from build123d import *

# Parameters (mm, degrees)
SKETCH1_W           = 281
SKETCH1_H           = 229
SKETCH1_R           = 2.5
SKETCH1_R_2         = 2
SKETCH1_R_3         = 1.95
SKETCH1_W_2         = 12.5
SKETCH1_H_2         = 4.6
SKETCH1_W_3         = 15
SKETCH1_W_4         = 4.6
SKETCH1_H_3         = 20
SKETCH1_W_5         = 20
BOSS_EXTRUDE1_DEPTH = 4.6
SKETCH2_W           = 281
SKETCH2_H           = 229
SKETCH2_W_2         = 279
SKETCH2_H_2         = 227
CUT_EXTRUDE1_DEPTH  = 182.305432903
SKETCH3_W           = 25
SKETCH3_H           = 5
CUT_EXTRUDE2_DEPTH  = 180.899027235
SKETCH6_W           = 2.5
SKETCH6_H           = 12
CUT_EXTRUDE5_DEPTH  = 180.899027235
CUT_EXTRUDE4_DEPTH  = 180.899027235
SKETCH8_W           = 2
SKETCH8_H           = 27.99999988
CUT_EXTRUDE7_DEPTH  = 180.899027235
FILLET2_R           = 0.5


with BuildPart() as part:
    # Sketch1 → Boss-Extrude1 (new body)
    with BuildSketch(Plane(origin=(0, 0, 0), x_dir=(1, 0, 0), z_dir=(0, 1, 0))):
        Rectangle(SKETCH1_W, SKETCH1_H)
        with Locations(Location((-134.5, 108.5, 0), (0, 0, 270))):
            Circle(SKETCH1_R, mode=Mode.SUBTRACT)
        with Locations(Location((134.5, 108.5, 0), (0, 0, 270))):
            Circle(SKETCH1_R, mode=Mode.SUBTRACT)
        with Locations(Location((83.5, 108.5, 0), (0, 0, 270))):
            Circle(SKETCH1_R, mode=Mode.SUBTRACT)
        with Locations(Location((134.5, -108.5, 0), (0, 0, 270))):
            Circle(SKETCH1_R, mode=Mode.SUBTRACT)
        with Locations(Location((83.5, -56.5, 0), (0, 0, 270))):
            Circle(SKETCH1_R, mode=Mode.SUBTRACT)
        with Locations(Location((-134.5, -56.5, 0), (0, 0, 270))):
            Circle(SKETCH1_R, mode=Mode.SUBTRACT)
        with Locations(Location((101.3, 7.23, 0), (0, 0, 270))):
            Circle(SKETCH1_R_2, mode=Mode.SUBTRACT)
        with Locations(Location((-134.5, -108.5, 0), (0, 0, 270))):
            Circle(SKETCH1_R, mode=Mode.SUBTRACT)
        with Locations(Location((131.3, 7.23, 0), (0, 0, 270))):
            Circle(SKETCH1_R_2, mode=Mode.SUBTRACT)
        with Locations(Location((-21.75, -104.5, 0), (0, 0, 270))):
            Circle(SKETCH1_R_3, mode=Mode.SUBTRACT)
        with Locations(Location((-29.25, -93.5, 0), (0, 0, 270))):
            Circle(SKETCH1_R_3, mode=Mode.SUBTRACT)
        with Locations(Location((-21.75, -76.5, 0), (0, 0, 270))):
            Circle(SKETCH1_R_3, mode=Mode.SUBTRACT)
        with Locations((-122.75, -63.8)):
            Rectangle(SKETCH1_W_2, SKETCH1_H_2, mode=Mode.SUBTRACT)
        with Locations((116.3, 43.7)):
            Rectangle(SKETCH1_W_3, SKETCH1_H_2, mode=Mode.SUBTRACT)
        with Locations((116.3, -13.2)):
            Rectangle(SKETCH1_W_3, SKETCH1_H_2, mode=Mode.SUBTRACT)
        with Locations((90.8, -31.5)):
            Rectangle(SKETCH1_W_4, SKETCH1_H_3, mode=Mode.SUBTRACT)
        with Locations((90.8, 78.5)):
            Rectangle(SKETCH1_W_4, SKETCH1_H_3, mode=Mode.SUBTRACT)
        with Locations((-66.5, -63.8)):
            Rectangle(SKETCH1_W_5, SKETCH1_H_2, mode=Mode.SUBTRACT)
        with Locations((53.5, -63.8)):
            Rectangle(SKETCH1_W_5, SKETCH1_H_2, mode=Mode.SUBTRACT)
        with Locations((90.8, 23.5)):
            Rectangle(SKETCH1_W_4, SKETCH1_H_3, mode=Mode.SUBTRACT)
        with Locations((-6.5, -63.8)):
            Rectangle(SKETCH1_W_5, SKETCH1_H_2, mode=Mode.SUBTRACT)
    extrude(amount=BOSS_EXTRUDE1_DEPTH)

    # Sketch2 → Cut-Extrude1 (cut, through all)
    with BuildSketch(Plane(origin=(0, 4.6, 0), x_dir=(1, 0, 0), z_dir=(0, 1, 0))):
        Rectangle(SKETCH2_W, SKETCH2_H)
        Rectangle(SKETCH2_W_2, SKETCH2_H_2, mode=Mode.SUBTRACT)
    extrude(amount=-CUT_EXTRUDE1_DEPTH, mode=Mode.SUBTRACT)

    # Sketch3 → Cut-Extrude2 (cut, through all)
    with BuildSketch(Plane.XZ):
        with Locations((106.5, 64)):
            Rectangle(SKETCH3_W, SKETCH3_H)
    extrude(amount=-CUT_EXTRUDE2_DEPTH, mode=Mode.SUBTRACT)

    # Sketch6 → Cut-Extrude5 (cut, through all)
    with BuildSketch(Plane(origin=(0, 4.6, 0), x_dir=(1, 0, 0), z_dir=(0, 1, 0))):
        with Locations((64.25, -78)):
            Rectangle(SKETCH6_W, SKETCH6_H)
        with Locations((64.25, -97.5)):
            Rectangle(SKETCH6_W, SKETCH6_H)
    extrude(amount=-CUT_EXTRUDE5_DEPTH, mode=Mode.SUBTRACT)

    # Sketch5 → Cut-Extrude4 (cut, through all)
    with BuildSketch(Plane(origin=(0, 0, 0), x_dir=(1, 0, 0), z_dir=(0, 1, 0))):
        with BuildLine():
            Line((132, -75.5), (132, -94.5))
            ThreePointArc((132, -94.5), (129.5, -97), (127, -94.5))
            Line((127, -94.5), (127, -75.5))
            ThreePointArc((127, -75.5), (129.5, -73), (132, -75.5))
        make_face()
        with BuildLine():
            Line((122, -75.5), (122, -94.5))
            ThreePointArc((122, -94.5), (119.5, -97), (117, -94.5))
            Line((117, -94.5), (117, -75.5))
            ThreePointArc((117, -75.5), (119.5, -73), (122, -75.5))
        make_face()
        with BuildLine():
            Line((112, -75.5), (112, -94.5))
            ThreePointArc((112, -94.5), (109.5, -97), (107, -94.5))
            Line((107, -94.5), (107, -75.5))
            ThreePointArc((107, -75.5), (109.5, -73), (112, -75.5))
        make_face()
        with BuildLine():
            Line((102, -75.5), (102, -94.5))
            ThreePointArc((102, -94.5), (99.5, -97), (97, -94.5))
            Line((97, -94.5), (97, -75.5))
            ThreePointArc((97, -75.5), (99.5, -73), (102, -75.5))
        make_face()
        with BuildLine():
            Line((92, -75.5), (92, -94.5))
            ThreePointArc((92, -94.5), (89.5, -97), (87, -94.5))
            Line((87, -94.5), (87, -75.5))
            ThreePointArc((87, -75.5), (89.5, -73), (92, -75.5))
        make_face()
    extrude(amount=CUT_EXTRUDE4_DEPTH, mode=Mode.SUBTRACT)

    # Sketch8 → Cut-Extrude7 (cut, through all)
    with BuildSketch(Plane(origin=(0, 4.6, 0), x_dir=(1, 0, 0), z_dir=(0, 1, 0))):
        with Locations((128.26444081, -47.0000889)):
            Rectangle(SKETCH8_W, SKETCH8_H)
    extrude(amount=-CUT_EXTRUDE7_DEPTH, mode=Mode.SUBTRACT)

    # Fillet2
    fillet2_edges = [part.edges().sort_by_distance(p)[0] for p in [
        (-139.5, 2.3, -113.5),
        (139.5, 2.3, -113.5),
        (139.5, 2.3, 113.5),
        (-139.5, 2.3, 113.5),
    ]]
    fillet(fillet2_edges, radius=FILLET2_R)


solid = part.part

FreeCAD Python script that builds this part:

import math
import FreeCAD as App
import Part
import Sketcher

V = App.Vector
Q = App.Units.Quantity


def edges_at(feature, points):
    """Names of the edges that pass closest to the given points."""
    edges = feature.Shape.Edges
    near = lambda p: min(range(len(edges)), key=lambda i: edges[i].distToShape(Part.Vertex(*p))[0])
    return sorted({f"Edge{near(p) + 1}" for p in points})


def add_polygon(sketch, points):
    """Adds a closed chain of lines whose ends are joined by coincident constraints."""
    first, n = sketch.GeometryCount, len(points)
    for a, b in zip(points, points[1:] + points[:1]):
        sketch.addGeometry(Part.LineSegment(App.Vector(*a, 0), App.Vector(*b, 0)), False)
    for i in range(n):
        sketch.addConstraint(Sketcher.Constraint("Coincident", first + i, 2, first + (i + 1) % n, 1))

doc = App.newDocument("Part")
body = doc.addObject("PartDesign::Body", "Body")

# Sketch on XZ plane
sketch1 = body.newObject("Sketcher::SketchObject", "Sketch")
sketch1.AttachmentSupport = (doc.getObject("XZ_Plane"), [""])
sketch1.MapMode = "FlatFace"
add_polygon(sketch1, [(-140.5, -114.5), (-140.5, 114.5), (140.5, 114.5), (140.5, -114.5)])  # lines 0-3
sketch1.addGeometry(Part.Circle(V(-134.5, 108.5, 0), V(0, 0, 1), 2.5), False)  # 4
add_polygon(sketch1, [(-116.5, 66.1), (-129, 66.1), (-129, 61.5), (-116.5, 61.5)])  # lines 5-8
sketch1.addGeometry(Part.Circle(V(-134.5, 56.5, 0), V(0, 0, 1), 2.5), False)  # 9
sketch1.addGeometry(Part.Circle(V(-21.8, 104.5, 0), V(0, 0, 1), 1.9), False)  # 10
sketch1.addGeometry(Part.Circle(V(-29.2, 93.5, 0), V(0, 0, 1), 1.9), False)  # 11
add_polygon(sketch1, [(-56.5, 66.1), (-76.5, 66.1), (-76.5, 61.5), (-56.5, 61.5)])  # lines 12-15
sketch1.addGeometry(Part.Circle(V(-21.8, 76.5, 0), V(0, 0, 1), 1.9), False)  # 16
add_polygon(sketch1, [(3.5, 66.1), (-16.5, 66.1), (-16.5, 61.5), (3.5, 61.5)])  # lines 17-20
add_polygon(sketch1, [(63.5, 66.1), (43.5, 66.1), (43.5, 61.5), (63.5, 61.5)])  # lines 21-24
sketch1.addGeometry(Part.Circle(V(134.5, 108.5, 0), V(0, 0, 1), 2.5), False)  # 25
sketch1.addGeometry(Part.Circle(V(83.5, 56.5, 0), V(0, 0, 1), 2.5), False)  # 26
add_polygon(sketch1, [(93.1, 41.5), (88.5, 41.5), (88.5, 21.5), (93.1, 21.5)])  # lines 27-30
add_polygon(sketch1, [(123.8, 15.5), (108.8, 15.5), (108.8, 10.9), (123.8, 10.9)])  # lines 31-34
sketch1.addGeometry(Part.Circle(V(-134.5, -108.5, 0), V(0, 0, 1), 2.5), False)  # 35
sketch1.addGeometry(Part.Circle(V(101.3, -7.2, 0), V(0, 0, 1), 2), False)  # 36
add_polygon(sketch1, [(93.1, -13.5), (88.5, -13.5), (88.5, -33.5), (93.1, -33.5)])  # lines 37-40
sketch1.addGeometry(Part.Circle(V(131.3, -7.2, 0), V(0, 0, 1), 2), False)  # 41
add_polygon(sketch1, [(123.8, -41.4), (108.8, -41.4), (108.8, -46), (123.8, -46)])  # lines 42-45
add_polygon(sketch1, [(93.1, -68.5), (88.5, -68.5), (88.5, -88.5), (93.1, -88.5)])  # lines 46-49
sketch1.addGeometry(Part.Circle(V(83.5, -108.5, 0), V(0, 0, 1), 2.5), False)  # 50
sketch1.addGeometry(Part.Circle(V(134.5, -108.5, 0), V(0, 0, 1), 2.5), False)  # 51
sketch1.addConstraint(Sketcher.Constraint("Vertical", 0))
sketch1.addConstraint(Sketcher.Constraint("Horizontal", 1))
sketch1.addConstraint(Sketcher.Constraint("Vertical", 2))
sketch1.addConstraint(Sketcher.Constraint("Horizontal", 3))
sketch1.addConstraint(Sketcher.Constraint("Horizontal", 5))
sketch1.addConstraint(Sketcher.Constraint("Vertical", 6))
sketch1.addConstraint(Sketcher.Constraint("Horizontal", 7))
sketch1.addConstraint(Sketcher.Constraint("Vertical", 8))
sketch1.addConstraint(Sketcher.Constraint("Horizontal", 12))
sketch1.addConstraint(Sketcher.Constraint("Vertical", 13))
sketch1.addConstraint(Sketcher.Constraint("Horizontal", 14))
sketch1.addConstraint(Sketcher.Constraint("Vertical", 15))
sketch1.addConstraint(Sketcher.Constraint("Horizontal", 17))
sketch1.addConstraint(Sketcher.Constraint("Vertical", 18))
sketch1.addConstraint(Sketcher.Constraint("Horizontal", 19))
sketch1.addConstraint(Sketcher.Constraint("Vertical", 20))
sketch1.addConstraint(Sketcher.Constraint("Horizontal", 21))
sketch1.addConstraint(Sketcher.Constraint("Vertical", 22))
sketch1.addConstraint(Sketcher.Constraint("Horizontal", 23))
sketch1.addConstraint(Sketcher.Constraint("Vertical", 24))
sketch1.addConstraint(Sketcher.Constraint("Horizontal", 27))
sketch1.addConstraint(Sketcher.Constraint("Vertical", 28))
sketch1.addConstraint(Sketcher.Constraint("Horizontal", 29))
sketch1.addConstraint(Sketcher.Constraint("Vertical", 30))
sketch1.addConstraint(Sketcher.Constraint("Horizontal", 31))
sketch1.addConstraint(Sketcher.Constraint("Vertical", 32))
sketch1.addConstraint(Sketcher.Constraint("Horizontal", 33))
sketch1.addConstraint(Sketcher.Constraint("Vertical", 34))
sketch1.addConstraint(Sketcher.Constraint("Horizontal", 37))
sketch1.addConstraint(Sketcher.Constraint("Vertical", 38))
sketch1.addConstraint(Sketcher.Constraint("Horizontal", 39))
sketch1.addConstraint(Sketcher.Constraint("Vertical", 40))
sketch1.addConstraint(Sketcher.Constraint("Horizontal", 42))
sketch1.addConstraint(Sketcher.Constraint("Vertical", 43))
sketch1.addConstraint(Sketcher.Constraint("Horizontal", 44))
sketch1.addConstraint(Sketcher.Constraint("Vertical", 45))
sketch1.addConstraint(Sketcher.Constraint("Horizontal", 46))
sketch1.addConstraint(Sketcher.Constraint("Vertical", 47))
sketch1.addConstraint(Sketcher.Constraint("Horizontal", 48))
sketch1.addConstraint(Sketcher.Constraint("Vertical", 49))
sketch1.addConstraint(Sketcher.Constraint("Equal", 4, 9))
sketch1.addConstraint(Sketcher.Constraint("Equal", 10, 11))
sketch1.addConstraint(Sketcher.Constraint("Equal", 11, 16))
sketch1.addConstraint(Sketcher.Constraint("Equal", 9, 25))
sketch1.addConstraint(Sketcher.Constraint("Equal", 25, 26))
sketch1.addConstraint(Sketcher.Constraint("Equal", 26, 35))
sketch1.addConstraint(Sketcher.Constraint("Equal", 36, 41))
sketch1.addConstraint(Sketcher.Constraint("Equal", 35, 50))
sketch1.addConstraint(Sketcher.Constraint("Equal", 50, 51))
sketch1.addConstraint(Sketcher.Constraint("Symmetric", 25, 3, 35, 3, -1, 1))
sketch1.addConstraint(Sketcher.Constraint("Symmetric", 4, 3, 51, 3, -1, 1))
sketch1.addConstraint(Sketcher.Constraint("Symmetric", 0, 2, 2, 2, -1, 1))
sketch1.addConstraint(Sketcher.Constraint("Symmetric", 4, 3, 25, 3, -2))
sketch1.addConstraint(Sketcher.Constraint("Horizontal", 9, 3, 26, 3))
sketch1.addConstraint(Sketcher.Constraint("Horizontal", 36, 3, 41, 3))
sketch1.addConstraint(Sketcher.Constraint("Horizontal", 35, 3, 50, 3))
sketch1.addConstraint(Sketcher.Constraint("Horizontal", 8, 2, 12, 2))
sketch1.addConstraint(Sketcher.Constraint("Horizontal", 7, 2, 13, 2))
sketch1.addConstraint(Sketcher.Constraint("Horizontal", 15, 2, 17, 2))
sketch1.addConstraint(Sketcher.Constraint("Horizontal", 14, 2, 18, 2))
sketch1.addConstraint(Sketcher.Constraint("Horizontal", 20, 2, 21, 2))
sketch1.addConstraint(Sketcher.Constraint("Horizontal", 19, 2, 22, 2))
sketch1.addConstraint(Sketcher.Constraint("Vertical", 4, 3, 9, 3))
sketch1.addConstraint(Sketcher.Constraint("Vertical", 10, 3, 16, 3))
sketch1.addConstraint(Sketcher.Constraint("Vertical", 26, 3, 50, 3))
sketch1.addConstraint(Sketcher.Constraint("Vertical", 28, 2, 37, 2))
sketch1.addConstraint(Sketcher.Constraint("Vertical", 30, 2, 39, 2))
sketch1.addConstraint(Sketcher.Constraint("Vertical", 32, 2, 42, 2))
sketch1.addConstraint(Sketcher.Constraint("Vertical", 34, 2, 44, 2))
sketch1.addConstraint(Sketcher.Constraint("Vertical", 38, 2, 46, 2))
sketch1.addConstraint(Sketcher.Constraint("Vertical", 40, 2, 48, 2))
sketch1.addConstraint(Sketcher.Constraint("Equal", 14, 17))
sketch1.addConstraint(Sketcher.Constraint("Equal", 19, 21))
sketch1.addConstraint(Sketcher.Constraint("Equal", 48, 6))
sketch1.addConstraint(Sketcher.Constraint("Equal", 23, 28))
sketch1.addConstraint(Sketcher.Constraint("Equal", 24, 32))
sketch1.addConstraint(Sketcher.Constraint("Equal", 30, 38))
sketch1.addConstraint(Sketcher.Constraint("Equal", 34, 43))
sketch1.addConstraint(Sketcher.Constraint("Equal", 40, 47))
sketch1.addConstraint(Sketcher.Constraint("Diameter", 4, Q("5 mm")))
sketch1.addConstraint(Sketcher.Constraint("Diameter", 36, Q("4 mm")))
sketch1.addConstraint(Sketcher.Constraint("Diameter", 10, Q("3.9 mm")))
sketch1.addConstraint(Sketcher.Constraint("DistanceX", 1, 1, 1, 2, Q("281 mm")))
sketch1.addConstraint(Sketcher.Constraint("DistanceX", 12, 2, 12, 1, Q("20 mm")))
sketch1.addConstraint(Sketcher.Constraint("DistanceX", 31, 2, 31, 1, Q("15 mm")))
sketch1.addConstraint(Sketcher.Constraint("DistanceY", 0, 1, 0, 2, Q("229 mm")))
sketch1.addConstraint(Sketcher.Constraint("DistanceX", 5, 2, 5, 1, Q("12.5 mm")))
sketch1.addConstraint(Sketcher.Constraint("DistanceX", 27, 2, 27, 1, Q("4.6 mm")))
sketch1.addConstraint(Sketcher.Constraint("DistanceX", 5, 2, -1, 1, Q("129 mm")))
sketch1.addConstraint(Sketcher.Constraint("DistanceY", 43, 2, -1, 1, Q("46 mm")))
sketch1.addConstraint(Sketcher.Constraint("DistanceY", 9, 3, 4, 3, Q("52 mm")))
sketch1.addConstraint(Sketcher.Constraint("DistanceY", 10, 3, 4, 3, Q("4 mm")))
sketch1.addConstraint(Sketcher.Constraint("DistanceY", 11, 3, 10, 3, Q("11 mm")))
sketch1.addConstraint(Sketcher.Constraint("DistanceY", 16, 3, 11, 3, Q("17 mm")))
sketch1.addConstraint(Sketcher.Constraint("DistanceX", 4, 3, 25, 3, Q("269 mm")))
sketch1.addConstraint(Sketcher.Constraint("DistanceX", 26, 3, 25, 3, Q("51 mm")))
sketch1.addConstraint(Sketcher.Constraint("DistanceY", 35, 3, 9, 3, Q("165 mm")))
sketch1.addConstraint(Sketcher.Constraint("DistanceX", 36, 3, 41, 3, Q("30 mm")))
sketch1.addConstraint(Sketcher.Constraint("DistanceY", 9, 3, 6, 2, Q("5 mm")))
sketch1.addConstraint(Sketcher.Constraint("DistanceX", 8, 2, 12, 2, Q("40 mm")))
sketch1.addConstraint(Sketcher.Constraint("DistanceX", 15, 2, 17, 2, Q("40 mm")))
sketch1.addConstraint(Sketcher.Constraint("DistanceX", 20, 2, 21, 2, Q("40 mm")))
sketch1.addConstraint(Sketcher.Constraint("DistanceX", 26, 3, 27, 2, Q("5 mm")))
sketch1.addConstraint(Sketcher.Constraint("DistanceY", 27, 2, 26, 3, Q("15 mm")))
sketch1.addConstraint(Sketcher.Constraint("DistanceY", 31, 2, 29, 2, Q("6 mm")))
sketch1.addConstraint(Sketcher.Constraint("DistanceY", 37, 2, 28, 2, Q("35 mm")))
sketch1.addConstraint(Sketcher.Constraint("DistanceY", 46, 2, 38, 2, Q("35 mm")))
sketch1.addConstraint(Sketcher.Constraint("DistanceX", -1, 1, 36, 3, Q("101.3 mm")))
sketch1.addConstraint(Sketcher.Constraint("DistanceX", -1, 1, 31, 2, Q("108.8 mm")))
sketch1.addConstraint(Sketcher.Constraint("DistanceX", 11, 3, 10, 3, Q("7.5 mm")))
sketch1.addConstraint(Sketcher.Constraint("DistanceX", 10, 3, -1, 1, Q("21.75 mm")))
sketch1.addConstraint(Sketcher.Constraint("DistanceY", 36, 3, -1, 1, Q("7.23 mm")))
pad1 = body.newObject("PartDesign::Pad", "Pad")
pad1.Profile = sketch1
pad1.Length = 4.6
pad1.Reversed = True

# Sketch on XZ plane
sketch2 = body.newObject("Sketcher::SketchObject", "Sketch001")
sketch2.AttachmentSupport = (doc.getObject("XZ_Plane"), [""])
sketch2.MapMode = "FlatFace"
sketch2.AttachmentOffset = App.Placement(V(0, 0, -4.6), App.Rotation())
add_polygon(sketch2, [(-140, -114), (-140, 114), (140, 114), (140, -114)])  # lines 0-3
add_polygon(sketch2, [(140, 114), (-140, 114), (-140, -114), (140, -114)])  # lines 4-7
sketch2.addConstraint(Sketcher.Constraint("Vertical", 0))
sketch2.addConstraint(Sketcher.Constraint("Horizontal", 1))
sketch2.addConstraint(Sketcher.Constraint("Vertical", 2))
sketch2.addConstraint(Sketcher.Constraint("Horizontal", 3))
sketch2.addConstraint(Sketcher.Constraint("Horizontal", 4))
sketch2.addConstraint(Sketcher.Constraint("Vertical", 5))
sketch2.addConstraint(Sketcher.Constraint("Horizontal", 6))
sketch2.addConstraint(Sketcher.Constraint("Vertical", 7))
sketch2.addConstraint(Sketcher.Constraint("Symmetric", 0, 2, 2, 2, -1, 1))
sketch2.addConstraint(Sketcher.Constraint("Symmetric", 4, 2, 6, 2, -1, 1))
sketch2.addConstraint(Sketcher.Constraint("DistanceX", 1, 1, 1, 2, Q("281 mm")))
sketch2.addConstraint(Sketcher.Constraint("DistanceX", 4, 2, 4, 1, Q("279 mm")))
sketch2.addConstraint(Sketcher.Constraint("DistanceY", 0, 1, 0, 2, Q("229 mm")))
sketch2.addConstraint(Sketcher.Constraint("DistanceY", 5, 2, 5, 1, Q("227 mm")))
pocket1 = body.newObject("PartDesign::Pocket", "Pocket")
pocket1.Profile = sketch2
pocket1.Type = "ThroughAll"
pocket1.Reversed = True

# Sketch on XZ plane
sketch3 = body.newObject("Sketcher::SketchObject", "Sketch002")
sketch3.AttachmentSupport = (doc.getObject("XZ_Plane"), [""])
sketch3.MapMode = "FlatFace"
add_polygon(sketch3, [(94, 66), (94, 62), (119, 62), (119, 66)])  # lines 0-3
sketch3.addConstraint(Sketcher.Constraint("Vertical", 0))
sketch3.addConstraint(Sketcher.Constraint("Horizontal", 1))
sketch3.addConstraint(Sketcher.Constraint("Vertical", 2))
sketch3.addConstraint(Sketcher.Constraint("Horizontal", 3))
sketch3.addConstraint(Sketcher.Constraint("DistanceX", 1, 1, 1, 2, Q("25 mm")))
sketch3.addConstraint(Sketcher.Constraint("DistanceY", 0, 2, 0, 1, Q("5 mm")))
sketch3.addConstraint(Sketcher.Constraint("DistanceX", -1, 1, 0, 2, Q("94 mm")))
sketch3.addConstraint(Sketcher.Constraint("DistanceY", -1, 1, 0, 2, Q("61.5 mm")))
pocket2 = body.newObject("PartDesign::Pocket", "Pocket001")
pocket2.Profile = sketch3
pocket2.Type = "ThroughAll"

# Sketch on XZ plane
sketch4 = body.newObject("Sketcher::SketchObject", "Sketch003")
sketch4.AttachmentSupport = (doc.getObject("XZ_Plane"), [""])
sketch4.MapMode = "FlatFace"
sketch4.AttachmentOffset = App.Placement(V(0, 0, -4.6), App.Rotation())
add_polygon(sketch4, [(63, 72), (63, 84), (65.5, 84), (65.5, 72)])  # lines 0-3
add_polygon(sketch4, [(63, 91.5), (63, 103.5), (65.5, 103.5), (65.5, 91.5)])  # lines 4-7
sketch4.addConstraint(Sketcher.Constraint("Vertical", 0))
sketch4.addConstraint(Sketcher.Constraint("Horizontal", 1))
sketch4.addConstraint(Sketcher.Constraint("Vertical", 2))
sketch4.addConstraint(Sketcher.Constraint("Horizontal", 3))
sketch4.addConstraint(Sketcher.Constraint("Vertical", 4))
sketch4.addConstraint(Sketcher.Constraint("Horizontal", 5))
sketch4.addConstraint(Sketcher.Constraint("Vertical", 6))
sketch4.addConstraint(Sketcher.Constraint("Horizontal", 7))
sketch4.addConstraint(Sketcher.Constraint("Vertical", 3, 2, 4, 2))
sketch4.addConstraint(Sketcher.Constraint("Vertical", 2, 2, 5, 2))
sketch4.addConstraint(Sketcher.Constraint("Equal", 2, 4))
sketch4.addConstraint(Sketcher.Constraint("DistanceY", 0, 1, 0, 2, Q("12 mm")))
sketch4.addConstraint(Sketcher.Constraint("DistanceX", 1, 1, 1, 2, Q("2.5 mm")))
sketch4.addConstraint(Sketcher.Constraint("DistanceX", -1, 1, 0, 2, Q("63 mm")))
sketch4.addConstraint(Sketcher.Constraint("DistanceY", -1, 1, 0, 2, Q("84 mm")))
sketch4.addConstraint(Sketcher.Constraint("DistanceY", -1, 1, 4, 2, Q("103.5 mm")))
pocket3 = body.newObject("PartDesign::Pocket", "Pocket002")
pocket3.Profile = sketch4
pocket3.Type = "ThroughAll"
pocket3.Reversed = True

# Sketch on XZ plane
sketch5 = body.newObject("Sketcher::SketchObject", "Sketch004")
sketch5.AttachmentSupport = (doc.getObject("XZ_Plane"), [""])
sketch5.MapMode = "FlatFace"
sketch5.addGeometry(Part.LineSegment(V(132, 94.5, 0), V(132, 75.5, 0)), False)
sketch5.addGeometry(Part.ArcOfCircle(Part.Circle(V(129.5, 75.5, 0), V(0, 0, 1), 2.5), math.radians(180), math.radians(360)), False)
sketch5.addGeometry(Part.LineSegment(V(127, 75.5, 0), V(127, 94.5, 0)), False)
sketch5.addGeometry(Part.ArcOfCircle(Part.Circle(V(129.5, 94.5, 0), V(0, 0, 1), 2.5), math.radians(0), math.radians(180)), False)
sketch5.addGeometry(Part.LineSegment(V(122, 94.5, 0), V(122, 75.5, 0)), False)
sketch5.addGeometry(Part.ArcOfCircle(Part.Circle(V(119.5, 75.5, 0), V(0, 0, 1), 2.5), math.radians(180), math.radians(360)), False)
sketch5.addGeometry(Part.LineSegment(V(117, 75.5, 0), V(117, 94.5, 0)), False)
sketch5.addGeometry(Part.ArcOfCircle(Part.Circle(V(119.5, 94.5, 0), V(0, 0, 1), 2.5), math.radians(0), math.radians(180)), False)
sketch5.addGeometry(Part.LineSegment(V(112, 94.5, 0), V(112, 75.5, 0)), False)
sketch5.addGeometry(Part.ArcOfCircle(Part.Circle(V(109.5, 75.5, 0), V(0, 0, 1), 2.5), math.radians(180), math.radians(360)), False)
sketch5.addGeometry(Part.LineSegment(V(107, 75.5, 0), V(107, 94.5, 0)), False)
sketch5.addGeometry(Part.ArcOfCircle(Part.Circle(V(109.5, 94.5, 0), V(0, 0, 1), 2.5), math.radians(0), math.radians(180)), False)
sketch5.addGeometry(Part.LineSegment(V(102, 94.5, 0), V(102, 75.5, 0)), False)
sketch5.addGeometry(Part.ArcOfCircle(Part.Circle(V(99.5, 75.5, 0), V(0, 0, 1), 2.5), math.radians(180), math.radians(360)), False)
sketch5.addGeometry(Part.LineSegment(V(97, 75.5, 0), V(97, 94.5, 0)), False)
sketch5.addGeometry(Part.ArcOfCircle(Part.Circle(V(99.5, 94.5, 0), V(0, 0, 1), 2.5), math.radians(0), math.radians(180)), False)
sketch5.addGeometry(Part.LineSegment(V(92, 94.5, 0), V(92, 75.5, 0)), False)
sketch5.addGeometry(Part.ArcOfCircle(Part.Circle(V(89.5, 75.5, 0), V(0, 0, 1), 2.5), math.radians(180), math.radians(360)), False)
sketch5.addGeometry(Part.LineSegment(V(87, 75.5, 0), V(87, 94.5, 0)), False)
sketch5.addGeometry(Part.ArcOfCircle(Part.Circle(V(89.5, 94.5, 0), V(0, 0, 1), 2.5), math.radians(0), math.radians(180)), False)
sketch5.addConstraint(Sketcher.Constraint("Tangent", 0, 2, 1, 2))
sketch5.addConstraint(Sketcher.Constraint("Tangent", 1, 1, 2, 1))
sketch5.addConstraint(Sketcher.Constraint("Tangent", 2, 2, 3, 2))
sketch5.addConstraint(Sketcher.Constraint("Tangent", 3, 1, 0, 1))
sketch5.addConstraint(Sketcher.Constraint("Tangent", 4, 2, 5, 2))
sketch5.addConstraint(Sketcher.Constraint("Tangent", 5, 1, 6, 1))
sketch5.addConstraint(Sketcher.Constraint("Tangent", 6, 2, 7, 2))
sketch5.addConstraint(Sketcher.Constraint("Tangent", 7, 1, 4, 1))
sketch5.addConstraint(Sketcher.Constraint("Tangent", 8, 2, 9, 2))
sketch5.addConstraint(Sketcher.Constraint("Tangent", 9, 1, 10, 1))
sketch5.addConstraint(Sketcher.Constraint("Tangent", 10, 2, 11, 2))
sketch5.addConstraint(Sketcher.Constraint("Tangent", 11, 1, 8, 1))
sketch5.addConstraint(Sketcher.Constraint("Tangent", 12, 2, 13, 2))
sketch5.addConstraint(Sketcher.Constraint("Tangent", 13, 1, 14, 1))
sketch5.addConstraint(Sketcher.Constraint("Tangent", 14, 2, 15, 2))
sketch5.addConstraint(Sketcher.Constraint("Tangent", 15, 1, 12, 1))
sketch5.addConstraint(Sketcher.Constraint("Tangent", 16, 2, 17, 2))
sketch5.addConstraint(Sketcher.Constraint("Tangent", 17, 1, 18, 1))
sketch5.addConstraint(Sketcher.Constraint("Tangent", 18, 2, 19, 2))
sketch5.addConstraint(Sketcher.Constraint("Tangent", 19, 1, 16, 1))
sketch5.addConstraint(Sketcher.Constraint("Vertical", 0))
sketch5.addConstraint(Sketcher.Constraint("Vertical", 2))
sketch5.addConstraint(Sketcher.Constraint("Vertical", 4))
sketch5.addConstraint(Sketcher.Constraint("Vertical", 6))
sketch5.addConstraint(Sketcher.Constraint("Vertical", 8))
sketch5.addConstraint(Sketcher.Constraint("Vertical", 10))
sketch5.addConstraint(Sketcher.Constraint("Vertical", 12))
sketch5.addConstraint(Sketcher.Constraint("Vertical", 14))
sketch5.addConstraint(Sketcher.Constraint("Vertical", 16))
sketch5.addConstraint(Sketcher.Constraint("Vertical", 18))
sketch5.addConstraint(Sketcher.Constraint("Equal", 3, 5))
sketch5.addConstraint(Sketcher.Constraint("Equal", 7, 9))
sketch5.addConstraint(Sketcher.Constraint("Equal", 11, 13))
sketch5.addConstraint(Sketcher.Constraint("Equal", 15, 17))
sketch5.addConstraint(Sketcher.Constraint("Horizontal", 1, 3, 5, 3))
sketch5.addConstraint(Sketcher.Constraint("Horizontal", 3, 3, 7, 3))
sketch5.addConstraint(Sketcher.Constraint("Horizontal", 5, 3, 9, 3))
sketch5.addConstraint(Sketcher.Constraint("Horizontal", 7, 3, 11, 3))
sketch5.addConstraint(Sketcher.Constraint("Horizontal", 9, 3, 13, 3))
sketch5.addConstraint(Sketcher.Constraint("Horizontal", 11, 3, 15, 3))
sketch5.addConstraint(Sketcher.Constraint("Horizontal", 13, 3, 17, 3))
sketch5.addConstraint(Sketcher.Constraint("Horizontal", 15, 3, 19, 3))
sketch5.addConstraint(Sketcher.Constraint("Radius", 1, Q("2.5 mm")))
sketch5.addConstraint(Sketcher.Constraint("DistanceY", 0, 2, 0, 1, Q("19 mm")))
sketch5.addConstraint(Sketcher.Constraint("DistanceX", -1, 1, 0, 2, Q("132 mm")))
sketch5.addConstraint(Sketcher.Constraint("DistanceX", -1, 1, 4, 2, Q("122 mm")))
sketch5.addConstraint(Sketcher.Constraint("DistanceX", -1, 1, 8, 2, Q("112 mm")))
sketch5.addConstraint(Sketcher.Constraint("DistanceX", -1, 1, 12, 2, Q("102 mm")))
sketch5.addConstraint(Sketcher.Constraint("DistanceX", -1, 1, 16, 2, Q("92 mm")))
sketch5.addConstraint(Sketcher.Constraint("DistanceY", -1, 1, 1, 3, Q("75.5 mm")))
pocket4 = body.newObject("PartDesign::Pocket", "Pocket003")
pocket4.Profile = sketch5
pocket4.Type = "ThroughAll"

# Sketch on XZ plane
sketch6 = body.newObject("Sketcher::SketchObject", "Sketch005")
sketch6.AttachmentSupport = (doc.getObject("XZ_Plane"), [""])
sketch6.MapMode = "FlatFace"
sketch6.AttachmentOffset = App.Placement(V(0, 0, -4.6), App.Rotation())
add_polygon(sketch6, [(127.3, 33), (127.3, 61), (129.3, 61), (129.3, 33)])  # lines 0-3
sketch6.addConstraint(Sketcher.Constraint("Vertical", 0))
sketch6.addConstraint(Sketcher.Constraint("Horizontal", 1))
sketch6.addConstraint(Sketcher.Constraint("Vertical", 2))
sketch6.addConstraint(Sketcher.Constraint("Horizontal", 3))
sketch6.addConstraint(Sketcher.Constraint("DistanceX", 1, 1, 1, 2, Q("2 mm")))
sketch6.addConstraint(Sketcher.Constraint("DistanceY", 0, 1, 0, 2, Q("28 mm")))
sketch6.addConstraint(Sketcher.Constraint("DistanceX", -1, 1, 0, 2, Q("127.264441 mm")))
sketch6.addConstraint(Sketcher.Constraint("DistanceY", -1, 1, 0, 2, Q("61.000089 mm")))
pocket5 = body.newObject("PartDesign::Pocket", "Pocket004")
pocket5.Profile = sketch6
pocket5.Type = "ThroughAll"
pocket5.Reversed = True
doc.recompute()

fillet = body.newObject("PartDesign::Fillet", "Fillet")
fillet.Base = (pocket5, edges_at(pocket5, [
    (-139.5, 2.3, -113.5),
    (139.5, 2.3, -113.5),
    (139.5, 2.3, 113.5),
    (-139.5, 2.3, 113.5),
]))
fillet.Radius = 0.5

doc.recompute()
